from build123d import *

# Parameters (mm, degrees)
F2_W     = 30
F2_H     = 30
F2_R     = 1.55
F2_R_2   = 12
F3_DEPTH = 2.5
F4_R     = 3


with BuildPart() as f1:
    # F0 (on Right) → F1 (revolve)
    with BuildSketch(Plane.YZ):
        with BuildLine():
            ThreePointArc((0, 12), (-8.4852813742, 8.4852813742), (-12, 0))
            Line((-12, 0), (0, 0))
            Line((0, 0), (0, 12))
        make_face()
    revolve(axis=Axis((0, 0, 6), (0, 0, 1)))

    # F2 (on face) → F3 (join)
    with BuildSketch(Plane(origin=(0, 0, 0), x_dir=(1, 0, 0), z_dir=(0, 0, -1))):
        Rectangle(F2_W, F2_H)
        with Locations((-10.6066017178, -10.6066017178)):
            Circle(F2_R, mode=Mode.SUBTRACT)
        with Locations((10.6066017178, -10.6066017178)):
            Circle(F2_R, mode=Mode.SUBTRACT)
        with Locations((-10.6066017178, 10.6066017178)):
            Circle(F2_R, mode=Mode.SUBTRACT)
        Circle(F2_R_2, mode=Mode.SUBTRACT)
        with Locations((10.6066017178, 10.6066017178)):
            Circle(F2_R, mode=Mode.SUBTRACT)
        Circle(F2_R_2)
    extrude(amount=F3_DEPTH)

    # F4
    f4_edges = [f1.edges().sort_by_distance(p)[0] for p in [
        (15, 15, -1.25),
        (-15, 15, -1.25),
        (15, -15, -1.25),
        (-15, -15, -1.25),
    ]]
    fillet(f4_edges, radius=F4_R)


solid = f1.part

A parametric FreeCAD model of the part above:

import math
import FreeCAD as App
import Part
import Sketcher
from FreeCAD import Vector


def edges_at(feature, points):
    """Names of the edges that pass closest to the given points."""
    edges = feature.Shape.Edges
    near = lambda p: min(range(len(edges)), key=lambda i: edges[i].distToShape(Part.Vertex(*p))[0])
    return sorted({f"Edge{near(p) + 1}" for p in points})

doc = App.newDocument("Part")
body = doc.addObject("PartDesign::Body", "Body")

sketch1 = doc.addObject("Sketcher::SketchObject", "Sketch")
body.addObject(sketch1)
sketch1.AttachmentSupport = (doc.YZ_Plane, [""])
sketch1.MapMode = "FlatFace"
sketch1.addGeometry(Part.ArcOfCircle(Part.Circle(Vector(0, 0, 0), Vector(0, 0, 1), 12), math.radians(90), math.radians(180)), False)
sketch1.addGeometry(Part.LineSegment(Vector(-12, 0, 0), Vector(0, 0, 0)), False)
sketch1.addGeometry(Part.LineSegment(Vector(0, 0, 0), Vector(0, 12, 0)), False)
sketch1.addConstraint(Sketcher.Constraint("Coincident", 0, 2, 1, 1))
sketch1.addConstraint(Sketcher.Constraint("Coincident", 1, 2, 2, 1))
sketch1.addConstraint(Sketcher.Constraint("Coincident", 2, 2, 0, 1))
sketch1.addConstraint(Sketcher.Constraint("Horizontal", 1))
sketch1.addConstraint(Sketcher.Constraint("Vertical", 2))
sketch1.addConstraint(Sketcher.Constraint("Coincident", 0, 3, -1, 1))
sketch1.addConstraint(Sketcher.Constraint("Coincident", 1, 2, -1, 1))
sketch1.addConstraint(Sketcher.Constraint("Radius", 0, 12.0))
revolution = doc.addObject("PartDesign::Revolution", "Revolution")
body.addObject(revolution)
revolution.Profile = sketch1
revolution.ReferenceAxis = (sketch1, ["V_Axis"])
revolution.Angle = 360

sketch2 = doc.addObject("Sketcher::SketchObject", "Sketch001")
body.addObject(sketch2)
sketch2.AttachmentSupport = (doc.XY_Plane, [""])
sketch2.MapMode = "FlatFace"
sketch2.addGeometry(Part.LineSegment(Vector(-15, -15, 0), Vector(-15, 15, 0)), False)
sketch2.addGeometry(Part.LineSegment(Vector(-15, 15, 0), Vector(15, 15, 0)), False)
sketch2.addGeometry(Part.LineSegment(Vector(15, 15, 0), Vector(15, -15, 0)), False)
sketch2.addGeometry(Part.LineSegment(Vector(15, -15, 0), Vector(-15, -15, 0)), False)
sketch2.addGeometry(Part.Circle(Vector(-10.6, 10.6, 0), Vector(0, 0, 1), 1.6), False)
sketch2.addGeometry(Part.Circle(Vector(10.6, 10.6, 0), Vector(0, 0, 1), 1.6), False)
sketch2.addGeometry(Part.Circle(Vector(-10.6, -10.6, 0), Vector(0, 0, 1), 1.6), False)
sketch2.addGeometry(Part.Circle(Vector(10.6, -10.6, 0), Vector(0, 0, 1), 1.6), False)
sketch2.addConstraint(Sketcher.Constraint("Coincident", 0, 2, 1, 1))
sketch2.addConstraint(Sketcher.Constraint("Coincident", 1, 2, 2, 1))
sketch2.addConstraint(Sketcher.Constraint("Coincident", 2, 2, 3, 1))
sketch2.addConstraint(Sketcher.Constraint("Coincident", 3, 2, 0, 1))
sketch2.addConstraint(Sketcher.Constraint("Vertical", 0))
sketch2.addConstraint(Sketcher.Constraint("Horizontal", 1))
sketch2.addConstraint(Sketcher.Constraint("Vertical", 2))
sketch2.addConstraint(Sketcher.Constraint("Horizontal", 3))
sketch2.addConstraint(Sketcher.Constraint("Equal", 4, 5))
sketch2.addConstraint(Sketcher.Constraint("Equal", 5, 6))
sketch2.addConstraint(Sketcher.Constraint("Equal", 6, 7))
sketch2.addConstraint(Sketcher.Constraint("Symmetric", 5, 3, 6, 3, -1, 1))
sketch2.addConstraint(Sketcher.Constraint("Symmetric", 4, 3, 7, 3, -1, 1))
sketch2.addConstraint(Sketcher.Constraint("Symmetric", 0, 2, 2, 2, -1, 1))
sketch2.addConstraint(Sketcher.Constraint("Symmetric", 4, 3, 5, 3, -2))
sketch2.addConstraint(Sketcher.Constraint("Equal", 3, 0))
sketch2.addConstraint(Sketcher.Constraint("Diameter", 4, 3.1))
sketch2.addConstraint(Sketcher.Constraint("DistanceX", 1, 1, 1, 2, 30.0))
sketch2.addConstraint(Sketcher.Constraint("DistanceX", 4, 3, -1, 1, 10.606602))
sketch2.addConstraint(Sketcher.Constraint("DistanceY", -1, 1, 4, 3, 10.606602))
pad1 = doc.addObject("PartDesign::Pad", "Pad")
body.addObject(pad1)
pad1.Profile = sketch2
pad1.Length = 2.5
pad1.Reversed = True
doc.recompute()

fillet = doc.addObject("PartDesign::Fillet", "Fillet")
body.addObject(fillet)
fillet.Base = (pad1, edges_at(pad1, [
    (15, 15, -1.25),
    (-15, 15, -1.25),
    (15, -15, -1.25),
    (-15, -15, -1.25),
]))
fillet.Radius = 3

doc.recompute()
